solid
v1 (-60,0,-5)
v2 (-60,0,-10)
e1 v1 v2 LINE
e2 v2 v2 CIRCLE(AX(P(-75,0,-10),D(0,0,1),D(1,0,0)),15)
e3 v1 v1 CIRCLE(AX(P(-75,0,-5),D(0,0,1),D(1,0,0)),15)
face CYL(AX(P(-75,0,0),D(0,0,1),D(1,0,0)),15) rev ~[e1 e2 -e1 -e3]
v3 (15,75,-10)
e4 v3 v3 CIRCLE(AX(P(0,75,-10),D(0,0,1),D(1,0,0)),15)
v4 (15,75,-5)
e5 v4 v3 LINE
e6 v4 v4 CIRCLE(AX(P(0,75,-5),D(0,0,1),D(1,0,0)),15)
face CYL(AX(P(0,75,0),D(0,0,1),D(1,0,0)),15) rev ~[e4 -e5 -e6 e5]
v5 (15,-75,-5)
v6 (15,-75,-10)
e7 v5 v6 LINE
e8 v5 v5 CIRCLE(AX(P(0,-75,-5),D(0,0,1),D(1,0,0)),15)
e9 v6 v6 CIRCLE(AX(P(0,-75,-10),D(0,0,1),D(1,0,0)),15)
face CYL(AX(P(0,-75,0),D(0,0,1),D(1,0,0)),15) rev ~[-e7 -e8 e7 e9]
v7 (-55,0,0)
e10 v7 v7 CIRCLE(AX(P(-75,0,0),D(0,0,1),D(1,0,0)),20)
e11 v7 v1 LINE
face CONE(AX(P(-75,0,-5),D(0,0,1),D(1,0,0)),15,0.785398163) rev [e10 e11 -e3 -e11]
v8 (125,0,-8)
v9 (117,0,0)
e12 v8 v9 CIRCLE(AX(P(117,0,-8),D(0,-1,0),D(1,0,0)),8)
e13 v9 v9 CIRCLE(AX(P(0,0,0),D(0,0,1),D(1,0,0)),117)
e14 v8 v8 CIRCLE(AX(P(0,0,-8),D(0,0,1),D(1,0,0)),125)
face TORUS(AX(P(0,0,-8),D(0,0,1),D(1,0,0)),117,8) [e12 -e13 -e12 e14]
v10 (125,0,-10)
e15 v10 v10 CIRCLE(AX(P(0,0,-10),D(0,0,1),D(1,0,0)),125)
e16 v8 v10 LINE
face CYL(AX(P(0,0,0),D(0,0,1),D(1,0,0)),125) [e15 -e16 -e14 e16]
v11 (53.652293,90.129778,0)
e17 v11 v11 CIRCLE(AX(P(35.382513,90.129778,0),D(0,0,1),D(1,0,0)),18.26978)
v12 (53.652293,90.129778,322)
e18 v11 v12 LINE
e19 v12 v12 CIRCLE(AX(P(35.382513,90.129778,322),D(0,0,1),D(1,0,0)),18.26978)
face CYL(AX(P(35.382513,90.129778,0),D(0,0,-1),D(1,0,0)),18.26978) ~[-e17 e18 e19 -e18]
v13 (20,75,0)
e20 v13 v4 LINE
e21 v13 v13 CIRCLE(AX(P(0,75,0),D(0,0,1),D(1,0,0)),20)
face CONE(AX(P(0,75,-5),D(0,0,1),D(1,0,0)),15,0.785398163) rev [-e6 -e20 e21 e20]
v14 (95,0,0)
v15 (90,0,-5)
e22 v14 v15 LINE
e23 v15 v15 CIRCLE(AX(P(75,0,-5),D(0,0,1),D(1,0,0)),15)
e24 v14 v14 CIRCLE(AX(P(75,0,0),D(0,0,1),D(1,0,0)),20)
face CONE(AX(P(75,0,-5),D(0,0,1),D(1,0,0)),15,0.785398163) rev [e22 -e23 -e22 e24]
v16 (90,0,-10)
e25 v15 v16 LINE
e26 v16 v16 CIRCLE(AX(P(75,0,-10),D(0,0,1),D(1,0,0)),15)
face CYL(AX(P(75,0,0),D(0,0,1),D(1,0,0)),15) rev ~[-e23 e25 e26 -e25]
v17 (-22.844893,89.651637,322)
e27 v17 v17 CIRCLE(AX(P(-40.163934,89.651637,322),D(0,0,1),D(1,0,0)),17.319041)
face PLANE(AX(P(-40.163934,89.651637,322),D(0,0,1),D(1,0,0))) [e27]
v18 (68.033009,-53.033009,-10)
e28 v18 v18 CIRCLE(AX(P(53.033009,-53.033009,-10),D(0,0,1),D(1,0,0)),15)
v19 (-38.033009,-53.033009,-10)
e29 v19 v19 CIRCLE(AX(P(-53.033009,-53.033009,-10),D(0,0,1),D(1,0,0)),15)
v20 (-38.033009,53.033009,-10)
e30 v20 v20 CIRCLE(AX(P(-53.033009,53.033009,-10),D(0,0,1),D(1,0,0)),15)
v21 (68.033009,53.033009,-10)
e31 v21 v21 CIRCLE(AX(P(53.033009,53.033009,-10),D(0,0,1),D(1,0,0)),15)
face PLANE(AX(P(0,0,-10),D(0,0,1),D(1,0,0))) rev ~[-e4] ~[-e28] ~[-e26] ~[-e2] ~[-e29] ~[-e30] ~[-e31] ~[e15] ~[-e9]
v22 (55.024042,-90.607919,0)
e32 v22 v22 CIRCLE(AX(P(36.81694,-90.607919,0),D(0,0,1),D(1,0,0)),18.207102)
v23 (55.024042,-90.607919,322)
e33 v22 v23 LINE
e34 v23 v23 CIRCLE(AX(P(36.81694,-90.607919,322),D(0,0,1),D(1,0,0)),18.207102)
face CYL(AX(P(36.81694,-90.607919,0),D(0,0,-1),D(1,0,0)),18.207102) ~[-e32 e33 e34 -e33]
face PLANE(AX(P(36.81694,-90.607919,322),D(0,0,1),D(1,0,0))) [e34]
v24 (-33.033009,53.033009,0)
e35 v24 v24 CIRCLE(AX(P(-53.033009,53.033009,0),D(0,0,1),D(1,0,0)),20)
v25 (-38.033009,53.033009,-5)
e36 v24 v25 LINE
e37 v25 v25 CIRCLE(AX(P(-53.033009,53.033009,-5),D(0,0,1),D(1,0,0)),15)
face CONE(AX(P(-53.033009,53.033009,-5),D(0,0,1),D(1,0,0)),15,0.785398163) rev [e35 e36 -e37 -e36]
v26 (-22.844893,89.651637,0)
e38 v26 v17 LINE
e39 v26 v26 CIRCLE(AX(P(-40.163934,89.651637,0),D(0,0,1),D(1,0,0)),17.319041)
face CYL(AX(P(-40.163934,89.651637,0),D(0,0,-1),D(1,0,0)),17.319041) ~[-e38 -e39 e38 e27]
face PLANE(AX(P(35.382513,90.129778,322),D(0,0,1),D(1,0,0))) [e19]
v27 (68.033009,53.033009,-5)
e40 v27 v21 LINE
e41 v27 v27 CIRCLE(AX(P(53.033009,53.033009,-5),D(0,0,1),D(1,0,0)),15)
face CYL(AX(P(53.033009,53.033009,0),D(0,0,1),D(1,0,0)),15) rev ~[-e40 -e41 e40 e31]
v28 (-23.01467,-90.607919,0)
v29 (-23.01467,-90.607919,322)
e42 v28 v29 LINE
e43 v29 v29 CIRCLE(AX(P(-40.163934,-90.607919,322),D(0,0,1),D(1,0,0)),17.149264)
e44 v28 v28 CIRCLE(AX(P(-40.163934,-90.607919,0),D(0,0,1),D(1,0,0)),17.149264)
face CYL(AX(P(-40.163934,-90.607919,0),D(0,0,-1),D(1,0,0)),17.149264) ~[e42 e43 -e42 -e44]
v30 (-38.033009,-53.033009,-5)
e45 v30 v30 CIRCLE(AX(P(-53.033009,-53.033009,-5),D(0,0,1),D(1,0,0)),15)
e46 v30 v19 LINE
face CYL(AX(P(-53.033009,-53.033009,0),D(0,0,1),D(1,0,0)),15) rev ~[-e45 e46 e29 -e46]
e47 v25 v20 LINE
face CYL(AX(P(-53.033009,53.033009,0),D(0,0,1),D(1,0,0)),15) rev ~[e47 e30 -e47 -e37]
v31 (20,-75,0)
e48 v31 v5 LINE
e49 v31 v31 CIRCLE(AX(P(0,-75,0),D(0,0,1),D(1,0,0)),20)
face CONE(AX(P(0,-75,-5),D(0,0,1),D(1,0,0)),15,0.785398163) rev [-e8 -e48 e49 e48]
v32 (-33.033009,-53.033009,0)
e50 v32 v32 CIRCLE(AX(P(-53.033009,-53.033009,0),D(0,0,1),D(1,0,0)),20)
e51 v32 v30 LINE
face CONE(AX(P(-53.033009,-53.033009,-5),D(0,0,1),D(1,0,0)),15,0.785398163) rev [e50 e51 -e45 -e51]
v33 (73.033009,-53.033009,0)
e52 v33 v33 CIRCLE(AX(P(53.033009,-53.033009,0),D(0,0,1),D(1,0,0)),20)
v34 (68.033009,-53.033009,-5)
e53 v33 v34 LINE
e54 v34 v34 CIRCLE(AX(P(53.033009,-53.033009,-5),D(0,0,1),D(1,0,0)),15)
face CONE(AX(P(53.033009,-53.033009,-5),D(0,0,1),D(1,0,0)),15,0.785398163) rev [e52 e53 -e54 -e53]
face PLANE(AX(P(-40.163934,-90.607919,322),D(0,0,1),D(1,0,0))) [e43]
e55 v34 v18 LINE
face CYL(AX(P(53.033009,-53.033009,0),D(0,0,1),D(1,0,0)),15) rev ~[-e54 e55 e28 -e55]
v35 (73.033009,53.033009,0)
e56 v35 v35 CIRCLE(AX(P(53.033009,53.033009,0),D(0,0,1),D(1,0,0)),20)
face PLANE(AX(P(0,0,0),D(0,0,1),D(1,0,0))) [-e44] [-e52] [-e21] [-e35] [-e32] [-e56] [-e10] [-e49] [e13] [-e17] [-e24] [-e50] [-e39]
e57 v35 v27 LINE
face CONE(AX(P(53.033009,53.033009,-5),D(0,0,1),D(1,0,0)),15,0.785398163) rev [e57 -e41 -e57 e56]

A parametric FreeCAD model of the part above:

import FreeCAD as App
import Part
import Sketcher
Q = App.Units.Quantity


def edges_at(feature, points):
    """Names of the edges that pass closest to the given points."""
    edges = feature.Shape.Edges
    near = lambda p: min(range(len(edges)), key=lambda i: edges[i].distToShape(Part.Vertex(*p))[0])
    return sorted({f"Edge{near(p) + 1}" for p in points})

doc = App.newDocument("Part")
body = doc.addObject("PartDesign::Body", "Body")

# Sketch on XY plane
sketch1 = doc.addObject("Sketcher::SketchObject", "Sketch")
body.addObject(sketch1)
sketch1.AttachmentSupport = (doc.XY_Plane, [""])
sketch1.MapMode = "FlatFace"
sketch1.addGeometry([
    Part.Circle(App.Vector(0, 0, 0), App.Vector(0, 0, 1), 125),  # 0
    Part.Circle(App.Vector(-53, -53, 0), App.Vector(0, 0, 1), 15),  # 1
    Part.Circle(App.Vector(0, -75, 0), App.Vector(0, 0, 1), 15),  # 2
    Part.Circle(App.Vector(53, -53, 0), App.Vector(0, 0, 1), 15),  # 3
    Part.Circle(App.Vector(-75, 0, 0), App.Vector(0, 0, 1), 15),  # 4
    Part.Circle(App.Vector(-53, 53, 0), App.Vector(0, 0, 1), 15),  # 5
    Part.Circle(App.Vector(75, 0, 0), App.Vector(0, 0, 1), 15),  # 6
    Part.Circle(App.Vector(0, 75, 0), App.Vector(0, 0, 1), 15),  # 7
    Part.Circle(App.Vector(53, 53, 0), App.Vector(0, 0, 1), 15),  # 8
], False)
sketch1.addConstraint([
    Sketcher.Constraint("Coincident", 0, 3, -1, 1),
    Sketcher.Constraint("Equal", 1, 2),
    Sketcher.Constraint("Equal", 2, 3),
    Sketcher.Constraint("Equal", 3, 4),
    Sketcher.Constraint("Equal", 4, 5),
    Sketcher.Constraint("Equal", 5, 6),
    Sketcher.Constraint("Equal", 6, 7),
    Sketcher.Constraint("Equal", 7, 8),
    Sketcher.Constraint("Symmetric", 3, 3, 5, 3, -1, 1),
    Sketcher.Constraint("Symmetric", 4, 3, 6, 3, -1, 1),
    Sketcher.Constraint("Symmetric", 2, 3, 7, 3, -1, 1),
    Sketcher.Constraint("Symmetric", 1, 3, 8, 3, -1, 1),
    Sketcher.Constraint("Symmetric", 1, 3, 3, 3, -2),
    Sketcher.Constraint("PointOnObject", 2, 3, -2),
    Sketcher.Constraint("PointOnObject", 4, 3, -1),
    Sketcher.Constraint("Diameter", 0, Q("250 mm")),
    Sketcher.Constraint("Diameter", 1, Q("30 mm")),
    Sketcher.Constraint("DistanceY", 2, 3, -1, 1, Q("75 mm")),
    Sketcher.Constraint("DistanceX", 4, 3, -1, 1, Q("75 mm")),
    Sketcher.Constraint("DistanceX", 1, 3, -1, 1, Q("53.033009 mm")),
    Sketcher.Constraint("DistanceY", 1, 3, -1, 1, Q("53.033009 mm")),
])
pad1 = doc.addObject("PartDesign::Pad", "Pad")
body.addObject(pad1)
pad1.Profile = sketch1
pad1.Length = 10
pad1.Reversed = True
doc.recompute()

fillet = doc.addObject("PartDesign::Fillet", "Fillet")
body.addObject(fillet)
fillet.Base = (pad1, edges_at(pad1, [(-125, 0, 0)]))
fillet.Radius = 8
doc.recompute()

chamfer = doc.addObject("PartDesign::Chamfer", "Chamfer")
body.addObject(chamfer)
chamfer.Base = (fillet, edges_at(fillet, [
    (-68.033, 53.033, 0),
    (-15, 75, 0),
    (-90, 0, 0),
    (38.033, 53.033, 0),
    (-68.033, -53.033, 0),
    (-15, -75, 0),
    (38.033, -53.033, 0),
    (60, 0, 0),
]))
chamfer.Size = 5

# Sketch on XY plane
sketch2 = doc.addObject("Sketcher::SketchObject", "Sketch001")
body.addObject(sketch2)
sketch2.AttachmentSupport = (doc.XY_Plane, [""])
sketch2.MapMode = "FlatFace"
sketch2.addGeometry([
    Part.Circle(App.Vector(-40, -91, 0), App.Vector(0, 0, 1), 17),
    Part.Circle(App.Vector(37, -91, 0), App.Vector(0, 0, 1), 18),
    Part.Circle(App.Vector(35, 90, 0), App.Vector(0, 0, 1), 18),
    Part.Circle(App.Vector(-40, 90, 0), App.Vector(0, 0, 1), 17),
], False)
sketch2.addConstraint([
    Sketcher.Constraint("Horizontal", 0, 3, 1, 3),
    Sketcher.Constraint("Vertical", 0, 3, 3, 3),
    Sketcher.Constraint("Diameter", 2, Q("36.53956 mm")),
    Sketcher.Constraint("Diameter", 3, Q("34.638082 mm")),
    Sketcher.Constraint("Diameter", 0, Q("34.298528 mm")),
    Sketcher.Constraint("Diameter", 1, Q("36.414204 mm")),
    Sketcher.Constraint("DistanceY", 0, 3, -1, 1, Q("90.607919 mm")),
    Sketcher.Constraint("DistanceX", -1, 1, 1, 3, Q("36.81694 mm")),
    Sketcher.Constraint("DistanceY", -1, 1, 2, 3, Q("90.129778 mm")),
    Sketcher.Constraint("DistanceY", 3, 3, 2, 3, Q("0.478141 mm")),
    Sketcher.Constraint("DistanceX", 0, 3, -1, 1, Q("40.163934 mm")),
    Sketcher.Constraint("DistanceX", -1, 1, 2, 3, Q("35.382513 mm")),
])
pad2 = doc.addObject("PartDesign::Pad", "Pad001")
body.addObject(pad2)
pad2.Profile = sketch2
pad2.Length = 322

doc.recompute()
